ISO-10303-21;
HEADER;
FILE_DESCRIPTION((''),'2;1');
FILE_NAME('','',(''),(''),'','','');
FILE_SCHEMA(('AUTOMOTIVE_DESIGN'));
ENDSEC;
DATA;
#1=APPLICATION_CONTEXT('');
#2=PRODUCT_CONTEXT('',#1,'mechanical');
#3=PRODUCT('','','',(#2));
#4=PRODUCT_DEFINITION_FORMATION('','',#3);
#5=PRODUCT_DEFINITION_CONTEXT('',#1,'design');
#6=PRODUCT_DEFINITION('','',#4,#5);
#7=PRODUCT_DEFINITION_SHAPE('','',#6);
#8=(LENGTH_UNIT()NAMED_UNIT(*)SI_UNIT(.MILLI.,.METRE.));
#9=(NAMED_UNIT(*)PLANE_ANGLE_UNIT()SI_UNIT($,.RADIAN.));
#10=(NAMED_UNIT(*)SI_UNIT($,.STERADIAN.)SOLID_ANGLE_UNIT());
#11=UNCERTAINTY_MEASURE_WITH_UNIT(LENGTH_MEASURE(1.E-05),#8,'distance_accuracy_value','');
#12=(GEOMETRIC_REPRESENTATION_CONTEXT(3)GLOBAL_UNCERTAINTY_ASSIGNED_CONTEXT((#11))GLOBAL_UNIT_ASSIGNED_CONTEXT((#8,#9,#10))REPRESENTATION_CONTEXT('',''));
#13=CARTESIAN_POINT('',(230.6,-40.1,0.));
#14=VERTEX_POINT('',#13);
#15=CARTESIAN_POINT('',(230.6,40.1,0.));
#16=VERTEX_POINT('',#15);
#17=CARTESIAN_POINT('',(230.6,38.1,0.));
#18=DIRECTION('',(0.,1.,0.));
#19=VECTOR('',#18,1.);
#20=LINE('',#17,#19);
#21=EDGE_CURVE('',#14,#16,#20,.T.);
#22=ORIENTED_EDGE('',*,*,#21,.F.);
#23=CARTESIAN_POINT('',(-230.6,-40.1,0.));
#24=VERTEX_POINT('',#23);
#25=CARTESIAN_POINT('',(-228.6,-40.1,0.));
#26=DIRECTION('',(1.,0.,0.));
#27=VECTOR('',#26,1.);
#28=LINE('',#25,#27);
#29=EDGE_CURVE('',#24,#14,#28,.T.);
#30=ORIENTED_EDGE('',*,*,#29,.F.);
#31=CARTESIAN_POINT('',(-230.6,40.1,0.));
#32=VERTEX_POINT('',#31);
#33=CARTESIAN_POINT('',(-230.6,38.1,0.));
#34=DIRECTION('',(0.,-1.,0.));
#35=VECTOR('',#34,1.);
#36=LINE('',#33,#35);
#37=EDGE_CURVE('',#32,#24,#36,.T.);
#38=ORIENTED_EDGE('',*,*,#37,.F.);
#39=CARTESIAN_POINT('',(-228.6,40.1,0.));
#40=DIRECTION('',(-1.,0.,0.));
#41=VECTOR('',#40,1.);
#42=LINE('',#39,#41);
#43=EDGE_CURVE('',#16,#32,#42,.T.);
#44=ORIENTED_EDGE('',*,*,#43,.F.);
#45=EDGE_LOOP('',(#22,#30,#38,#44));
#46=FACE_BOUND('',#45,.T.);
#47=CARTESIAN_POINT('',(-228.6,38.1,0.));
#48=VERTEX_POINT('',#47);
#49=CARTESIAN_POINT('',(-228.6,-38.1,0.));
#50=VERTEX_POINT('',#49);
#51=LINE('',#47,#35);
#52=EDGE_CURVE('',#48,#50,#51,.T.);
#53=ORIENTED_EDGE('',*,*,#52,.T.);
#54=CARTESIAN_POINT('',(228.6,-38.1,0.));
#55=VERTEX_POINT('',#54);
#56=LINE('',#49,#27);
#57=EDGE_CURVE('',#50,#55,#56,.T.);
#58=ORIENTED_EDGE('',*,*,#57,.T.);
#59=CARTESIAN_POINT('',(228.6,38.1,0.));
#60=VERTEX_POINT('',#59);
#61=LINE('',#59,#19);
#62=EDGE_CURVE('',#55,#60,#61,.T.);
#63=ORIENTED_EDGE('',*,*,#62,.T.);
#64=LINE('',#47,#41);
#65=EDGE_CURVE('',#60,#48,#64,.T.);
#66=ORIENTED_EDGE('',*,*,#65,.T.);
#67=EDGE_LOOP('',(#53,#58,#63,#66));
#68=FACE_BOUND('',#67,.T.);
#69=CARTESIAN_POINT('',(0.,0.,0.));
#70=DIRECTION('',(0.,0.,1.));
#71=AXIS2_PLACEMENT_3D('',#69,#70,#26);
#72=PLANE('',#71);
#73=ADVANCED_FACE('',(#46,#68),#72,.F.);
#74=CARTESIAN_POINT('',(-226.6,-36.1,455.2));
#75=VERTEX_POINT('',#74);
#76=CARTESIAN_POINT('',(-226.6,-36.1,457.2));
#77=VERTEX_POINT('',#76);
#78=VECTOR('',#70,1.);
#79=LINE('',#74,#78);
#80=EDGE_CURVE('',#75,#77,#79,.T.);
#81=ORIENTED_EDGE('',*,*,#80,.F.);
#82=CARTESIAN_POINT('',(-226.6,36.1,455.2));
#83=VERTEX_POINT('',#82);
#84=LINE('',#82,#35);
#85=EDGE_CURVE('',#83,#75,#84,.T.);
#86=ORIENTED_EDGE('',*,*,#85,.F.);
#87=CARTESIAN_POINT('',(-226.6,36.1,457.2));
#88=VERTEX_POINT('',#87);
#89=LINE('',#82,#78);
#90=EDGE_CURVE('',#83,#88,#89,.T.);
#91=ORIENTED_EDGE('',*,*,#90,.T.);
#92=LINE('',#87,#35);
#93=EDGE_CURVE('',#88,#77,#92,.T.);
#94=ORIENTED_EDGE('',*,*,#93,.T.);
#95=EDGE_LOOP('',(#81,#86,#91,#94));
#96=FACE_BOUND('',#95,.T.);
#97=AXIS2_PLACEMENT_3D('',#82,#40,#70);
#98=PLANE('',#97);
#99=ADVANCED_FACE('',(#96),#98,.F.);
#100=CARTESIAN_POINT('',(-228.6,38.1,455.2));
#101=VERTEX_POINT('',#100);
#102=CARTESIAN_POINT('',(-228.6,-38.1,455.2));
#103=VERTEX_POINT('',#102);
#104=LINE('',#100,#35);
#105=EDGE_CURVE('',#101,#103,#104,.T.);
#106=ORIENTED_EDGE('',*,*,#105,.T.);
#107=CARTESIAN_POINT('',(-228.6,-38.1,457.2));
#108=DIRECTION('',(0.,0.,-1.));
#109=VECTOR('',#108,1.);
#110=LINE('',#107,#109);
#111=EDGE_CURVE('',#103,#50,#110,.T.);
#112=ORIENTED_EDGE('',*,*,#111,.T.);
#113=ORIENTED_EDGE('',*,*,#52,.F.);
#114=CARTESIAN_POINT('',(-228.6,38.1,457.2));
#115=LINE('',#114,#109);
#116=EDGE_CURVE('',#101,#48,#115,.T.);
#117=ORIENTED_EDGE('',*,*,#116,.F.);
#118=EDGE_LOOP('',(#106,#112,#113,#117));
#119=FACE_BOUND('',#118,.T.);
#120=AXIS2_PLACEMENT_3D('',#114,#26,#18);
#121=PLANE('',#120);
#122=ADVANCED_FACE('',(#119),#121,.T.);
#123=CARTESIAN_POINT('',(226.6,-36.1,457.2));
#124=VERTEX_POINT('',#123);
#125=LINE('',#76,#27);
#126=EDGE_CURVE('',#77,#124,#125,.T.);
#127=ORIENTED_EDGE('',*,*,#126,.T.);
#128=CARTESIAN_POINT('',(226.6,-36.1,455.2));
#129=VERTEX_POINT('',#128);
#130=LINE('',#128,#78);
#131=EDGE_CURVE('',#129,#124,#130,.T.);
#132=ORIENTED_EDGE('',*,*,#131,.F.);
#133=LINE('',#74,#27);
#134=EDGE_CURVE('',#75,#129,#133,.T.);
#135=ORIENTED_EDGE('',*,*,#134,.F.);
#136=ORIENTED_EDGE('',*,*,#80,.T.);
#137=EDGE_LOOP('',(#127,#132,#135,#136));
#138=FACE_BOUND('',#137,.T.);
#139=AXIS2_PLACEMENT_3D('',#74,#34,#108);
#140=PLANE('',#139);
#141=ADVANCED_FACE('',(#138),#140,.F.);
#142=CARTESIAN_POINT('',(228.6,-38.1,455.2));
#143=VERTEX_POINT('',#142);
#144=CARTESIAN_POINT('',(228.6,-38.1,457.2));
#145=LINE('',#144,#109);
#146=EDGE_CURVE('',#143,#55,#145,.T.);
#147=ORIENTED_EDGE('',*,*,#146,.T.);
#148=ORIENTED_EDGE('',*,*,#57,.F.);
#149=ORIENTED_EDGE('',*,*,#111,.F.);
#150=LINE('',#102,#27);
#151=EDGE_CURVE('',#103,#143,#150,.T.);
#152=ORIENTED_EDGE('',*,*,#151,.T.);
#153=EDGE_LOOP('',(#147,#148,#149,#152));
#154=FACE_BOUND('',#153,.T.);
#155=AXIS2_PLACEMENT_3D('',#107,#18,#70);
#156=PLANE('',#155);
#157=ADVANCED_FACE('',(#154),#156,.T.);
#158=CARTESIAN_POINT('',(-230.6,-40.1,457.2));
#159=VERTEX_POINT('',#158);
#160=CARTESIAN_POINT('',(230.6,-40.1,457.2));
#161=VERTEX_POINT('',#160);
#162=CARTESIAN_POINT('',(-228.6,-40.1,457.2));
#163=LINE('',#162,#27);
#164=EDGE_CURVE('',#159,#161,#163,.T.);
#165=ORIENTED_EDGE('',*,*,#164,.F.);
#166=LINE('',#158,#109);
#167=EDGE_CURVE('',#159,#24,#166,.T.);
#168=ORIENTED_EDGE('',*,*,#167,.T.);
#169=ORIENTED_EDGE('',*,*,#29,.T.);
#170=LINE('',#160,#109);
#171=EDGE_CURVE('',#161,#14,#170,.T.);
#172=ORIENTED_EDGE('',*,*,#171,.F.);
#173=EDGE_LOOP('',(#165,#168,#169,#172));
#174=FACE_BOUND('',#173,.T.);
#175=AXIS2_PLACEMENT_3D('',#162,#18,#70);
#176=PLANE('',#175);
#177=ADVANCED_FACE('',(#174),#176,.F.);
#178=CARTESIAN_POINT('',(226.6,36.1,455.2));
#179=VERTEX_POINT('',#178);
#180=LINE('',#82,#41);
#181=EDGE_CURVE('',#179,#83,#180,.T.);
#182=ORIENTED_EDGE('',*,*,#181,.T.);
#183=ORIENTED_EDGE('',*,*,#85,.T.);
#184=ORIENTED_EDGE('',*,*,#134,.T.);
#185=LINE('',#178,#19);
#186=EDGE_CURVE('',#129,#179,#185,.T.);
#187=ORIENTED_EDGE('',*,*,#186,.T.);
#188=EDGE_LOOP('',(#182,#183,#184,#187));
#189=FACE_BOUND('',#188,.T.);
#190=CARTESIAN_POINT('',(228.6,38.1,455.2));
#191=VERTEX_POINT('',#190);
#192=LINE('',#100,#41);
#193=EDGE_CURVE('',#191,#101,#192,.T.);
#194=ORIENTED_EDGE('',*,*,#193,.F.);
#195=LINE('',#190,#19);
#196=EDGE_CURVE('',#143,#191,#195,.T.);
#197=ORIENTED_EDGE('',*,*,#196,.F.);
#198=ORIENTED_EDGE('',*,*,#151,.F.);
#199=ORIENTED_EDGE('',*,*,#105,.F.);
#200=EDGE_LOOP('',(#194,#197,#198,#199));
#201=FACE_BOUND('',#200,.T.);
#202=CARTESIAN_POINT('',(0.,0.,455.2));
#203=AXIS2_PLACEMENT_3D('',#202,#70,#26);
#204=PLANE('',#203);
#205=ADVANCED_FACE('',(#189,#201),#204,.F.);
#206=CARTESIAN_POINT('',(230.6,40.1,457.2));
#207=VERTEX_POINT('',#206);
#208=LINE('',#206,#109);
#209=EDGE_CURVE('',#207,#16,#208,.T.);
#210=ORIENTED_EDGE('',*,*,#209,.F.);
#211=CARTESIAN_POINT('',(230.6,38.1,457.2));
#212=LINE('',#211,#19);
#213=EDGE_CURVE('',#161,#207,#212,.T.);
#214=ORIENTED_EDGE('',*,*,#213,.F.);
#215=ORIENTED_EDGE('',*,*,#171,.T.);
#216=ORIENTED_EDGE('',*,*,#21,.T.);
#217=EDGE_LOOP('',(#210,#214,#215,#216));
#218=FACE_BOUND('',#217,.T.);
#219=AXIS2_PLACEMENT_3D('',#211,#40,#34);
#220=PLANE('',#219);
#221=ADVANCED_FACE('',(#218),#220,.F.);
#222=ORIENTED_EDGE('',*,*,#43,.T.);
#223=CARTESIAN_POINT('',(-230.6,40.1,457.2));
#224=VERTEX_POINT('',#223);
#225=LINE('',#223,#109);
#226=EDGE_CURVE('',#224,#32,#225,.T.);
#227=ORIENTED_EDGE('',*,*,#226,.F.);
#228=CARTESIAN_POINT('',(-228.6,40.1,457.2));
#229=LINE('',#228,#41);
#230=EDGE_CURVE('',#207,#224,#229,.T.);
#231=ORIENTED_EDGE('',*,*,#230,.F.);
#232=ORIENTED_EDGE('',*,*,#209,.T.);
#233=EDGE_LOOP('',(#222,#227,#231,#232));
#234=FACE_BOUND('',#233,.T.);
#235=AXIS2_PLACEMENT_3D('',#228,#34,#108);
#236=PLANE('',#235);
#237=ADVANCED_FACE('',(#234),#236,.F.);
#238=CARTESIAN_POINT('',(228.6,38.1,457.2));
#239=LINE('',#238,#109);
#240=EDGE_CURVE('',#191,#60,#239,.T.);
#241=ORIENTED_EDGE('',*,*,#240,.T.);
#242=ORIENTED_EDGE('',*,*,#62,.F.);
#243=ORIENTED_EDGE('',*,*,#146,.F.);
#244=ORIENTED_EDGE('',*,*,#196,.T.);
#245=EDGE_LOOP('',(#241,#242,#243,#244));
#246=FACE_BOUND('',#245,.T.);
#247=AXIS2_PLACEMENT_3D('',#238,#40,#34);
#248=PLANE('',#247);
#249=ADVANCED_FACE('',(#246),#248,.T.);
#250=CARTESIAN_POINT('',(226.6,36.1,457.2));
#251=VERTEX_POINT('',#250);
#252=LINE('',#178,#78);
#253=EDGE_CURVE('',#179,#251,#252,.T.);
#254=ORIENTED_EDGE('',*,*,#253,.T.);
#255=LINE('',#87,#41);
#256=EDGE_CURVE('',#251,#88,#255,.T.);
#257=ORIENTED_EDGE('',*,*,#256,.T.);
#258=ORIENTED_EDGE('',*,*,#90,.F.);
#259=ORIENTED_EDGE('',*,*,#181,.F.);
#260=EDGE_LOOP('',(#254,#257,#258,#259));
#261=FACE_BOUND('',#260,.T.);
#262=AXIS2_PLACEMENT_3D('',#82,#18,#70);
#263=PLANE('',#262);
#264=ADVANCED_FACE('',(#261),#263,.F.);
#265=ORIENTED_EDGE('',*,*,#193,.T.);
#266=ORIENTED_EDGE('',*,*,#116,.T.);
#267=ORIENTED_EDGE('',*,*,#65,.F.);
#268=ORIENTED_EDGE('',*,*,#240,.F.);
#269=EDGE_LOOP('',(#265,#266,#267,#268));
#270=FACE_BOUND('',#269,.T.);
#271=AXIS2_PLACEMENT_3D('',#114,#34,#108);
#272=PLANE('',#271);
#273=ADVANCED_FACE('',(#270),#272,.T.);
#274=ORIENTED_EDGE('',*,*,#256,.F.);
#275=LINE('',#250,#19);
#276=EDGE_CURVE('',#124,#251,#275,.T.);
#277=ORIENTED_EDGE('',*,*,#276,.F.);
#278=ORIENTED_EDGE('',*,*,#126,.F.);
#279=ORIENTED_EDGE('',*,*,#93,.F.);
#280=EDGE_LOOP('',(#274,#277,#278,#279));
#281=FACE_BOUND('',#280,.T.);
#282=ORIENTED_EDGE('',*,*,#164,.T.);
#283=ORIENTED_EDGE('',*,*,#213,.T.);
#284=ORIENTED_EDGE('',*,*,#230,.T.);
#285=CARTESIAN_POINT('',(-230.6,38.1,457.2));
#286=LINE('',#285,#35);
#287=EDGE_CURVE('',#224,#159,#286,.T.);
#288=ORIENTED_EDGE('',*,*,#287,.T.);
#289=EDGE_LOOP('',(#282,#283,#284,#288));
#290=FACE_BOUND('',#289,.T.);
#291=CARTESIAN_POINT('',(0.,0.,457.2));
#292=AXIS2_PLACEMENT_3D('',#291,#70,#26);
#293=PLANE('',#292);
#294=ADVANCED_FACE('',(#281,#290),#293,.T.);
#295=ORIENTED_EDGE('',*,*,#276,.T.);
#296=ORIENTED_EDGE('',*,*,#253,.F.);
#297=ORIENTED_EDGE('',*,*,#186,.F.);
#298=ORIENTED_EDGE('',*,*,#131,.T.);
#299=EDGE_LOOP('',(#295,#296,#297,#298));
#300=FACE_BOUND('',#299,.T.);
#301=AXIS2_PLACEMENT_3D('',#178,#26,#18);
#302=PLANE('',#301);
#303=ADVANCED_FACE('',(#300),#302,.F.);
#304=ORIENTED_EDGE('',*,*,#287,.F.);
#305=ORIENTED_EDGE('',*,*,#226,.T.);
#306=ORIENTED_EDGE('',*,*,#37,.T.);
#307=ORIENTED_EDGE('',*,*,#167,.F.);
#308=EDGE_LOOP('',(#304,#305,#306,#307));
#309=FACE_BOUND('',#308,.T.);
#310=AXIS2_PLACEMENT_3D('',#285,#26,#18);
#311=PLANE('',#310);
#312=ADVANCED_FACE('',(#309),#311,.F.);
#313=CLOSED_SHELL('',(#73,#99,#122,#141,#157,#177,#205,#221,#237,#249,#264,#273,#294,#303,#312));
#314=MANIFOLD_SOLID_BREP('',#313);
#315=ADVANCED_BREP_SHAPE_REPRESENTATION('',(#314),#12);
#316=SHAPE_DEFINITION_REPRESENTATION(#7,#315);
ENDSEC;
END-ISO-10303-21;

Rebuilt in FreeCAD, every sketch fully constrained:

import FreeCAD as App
import Part
import Sketcher


def add_polygon(sketch, points):
    """Adds a closed chain of lines whose ends are joined by coincident constraints."""
    first, n = sketch.GeometryCount, len(points)
    for a, b in zip(points, points[1:] + points[:1]):
        sketch.addGeometry(Part.LineSegment(App.Vector(*a, 0), App.Vector(*b, 0)), False)
    for i in range(n):
        sketch.addConstraint(Sketcher.Constraint("Coincident", first + i, 2, first + (i + 1) % n, 1))

doc = App.newDocument("Part")
body = doc.addObject("PartDesign::Body", "Body")

# Sketch on XY plane
sketch1 = body.newObject("Sketcher::SketchObject", "Sketch")
sketch1.AttachmentSupport = (doc.getObject("XY_Plane"), [""])
sketch1.MapMode = "FlatFace"
add_polygon(sketch1, [(-231, 40), (-231, -40), (231, -40), (231, 40)])  # lines 0-3
add_polygon(sketch1, [(229, -38), (-229, -38), (-229, 38), (229, 38)])  # lines 4-7
sketch1.addConstraint([
    Sketcher.Constraint("Vertical", 0),
    Sketcher.Constraint("Horizontal", 1),
    Sketcher.Constraint("Vertical", 2),
    Sketcher.Constraint("Horizontal", 3),
    Sketcher.Constraint("Horizontal", 4),
    Sketcher.Constraint("Vertical", 5),
    Sketcher.Constraint("Horizontal", 6),
    Sketcher.Constraint("Vertical", 7),
    Sketcher.Constraint("Symmetric", 0, 2, 2, 2, -1, 1),
    Sketcher.Constraint("Symmetric", 4, 2, 6, 2, -1, 1),
    Sketcher.Constraint("DistanceX", 1, 1, 1, 2, 461.2),
    Sketcher.Constraint("DistanceX", 4, 2, 4, 1, 457.2),
    Sketcher.Constraint("DistanceY", 0, 2, 0, 1, 80.2),
    Sketcher.Constraint("DistanceY", 5, 1, 5, 2, 76.2),
])
pad1 = body.newObject("PartDesign::Pad", "Pad")
pad1.Profile = sketch1
pad1.Length = 457.2

# Sketch on XY plane
sketch2 = body.newObject("Sketcher::SketchObject", "Sketch001")
sketch2.AttachmentSupport = (doc.getObject("XY_Plane"), [""])
sketch2.MapMode = "FlatFace"
sketch2.AttachmentOffset = App.Placement(App.Vector(0, 0, 457.2), App.Rotation())
add_polygon(sketch2, [(-231, 40), (-231, -40), (231, -40), (231, 40)])  # lines 0-3
add_polygon(sketch2, [(227, -36), (-227, -36), (-227, 36), (227, 36)])  # lines 4-7
sketch2.addConstraint([
    Sketcher.Constraint("Vertical", 0),
    Sketcher.Constraint("Horizontal", 1),
    Sketcher.Constraint("Vertical", 2),
    Sketcher.Constraint("Horizontal", 3),
    Sketcher.Constraint("Horizontal", 4),
    Sketcher.Constraint("Vertical", 5),
    Sketcher.Constraint("Horizontal", 6),
    Sketcher.Constraint("Vertical", 7),
    Sketcher.Constraint("Symmetric", 0, 2, 2, 2, -1, 1),
    Sketcher.Constraint("Symmetric", 4, 2, 6, 2, -1, 1),
    Sketcher.Constraint("DistanceX", 1, 1, 1, 2, 461.2),
    Sketcher.Constraint("DistanceX", 4, 2, 4, 1, 453.2),
    Sketcher.Constraint("DistanceY", 0, 2, 0, 1, 80.2),
    Sketcher.Constraint("DistanceY", 5, 1, 5, 2, 72.2),
])
pad2 = body.newObject("PartDesign::Pad", "Pad001")
pad2.Profile = sketch2
pad2.Length = 2
pad2.Reversed = True

doc.recompute()
